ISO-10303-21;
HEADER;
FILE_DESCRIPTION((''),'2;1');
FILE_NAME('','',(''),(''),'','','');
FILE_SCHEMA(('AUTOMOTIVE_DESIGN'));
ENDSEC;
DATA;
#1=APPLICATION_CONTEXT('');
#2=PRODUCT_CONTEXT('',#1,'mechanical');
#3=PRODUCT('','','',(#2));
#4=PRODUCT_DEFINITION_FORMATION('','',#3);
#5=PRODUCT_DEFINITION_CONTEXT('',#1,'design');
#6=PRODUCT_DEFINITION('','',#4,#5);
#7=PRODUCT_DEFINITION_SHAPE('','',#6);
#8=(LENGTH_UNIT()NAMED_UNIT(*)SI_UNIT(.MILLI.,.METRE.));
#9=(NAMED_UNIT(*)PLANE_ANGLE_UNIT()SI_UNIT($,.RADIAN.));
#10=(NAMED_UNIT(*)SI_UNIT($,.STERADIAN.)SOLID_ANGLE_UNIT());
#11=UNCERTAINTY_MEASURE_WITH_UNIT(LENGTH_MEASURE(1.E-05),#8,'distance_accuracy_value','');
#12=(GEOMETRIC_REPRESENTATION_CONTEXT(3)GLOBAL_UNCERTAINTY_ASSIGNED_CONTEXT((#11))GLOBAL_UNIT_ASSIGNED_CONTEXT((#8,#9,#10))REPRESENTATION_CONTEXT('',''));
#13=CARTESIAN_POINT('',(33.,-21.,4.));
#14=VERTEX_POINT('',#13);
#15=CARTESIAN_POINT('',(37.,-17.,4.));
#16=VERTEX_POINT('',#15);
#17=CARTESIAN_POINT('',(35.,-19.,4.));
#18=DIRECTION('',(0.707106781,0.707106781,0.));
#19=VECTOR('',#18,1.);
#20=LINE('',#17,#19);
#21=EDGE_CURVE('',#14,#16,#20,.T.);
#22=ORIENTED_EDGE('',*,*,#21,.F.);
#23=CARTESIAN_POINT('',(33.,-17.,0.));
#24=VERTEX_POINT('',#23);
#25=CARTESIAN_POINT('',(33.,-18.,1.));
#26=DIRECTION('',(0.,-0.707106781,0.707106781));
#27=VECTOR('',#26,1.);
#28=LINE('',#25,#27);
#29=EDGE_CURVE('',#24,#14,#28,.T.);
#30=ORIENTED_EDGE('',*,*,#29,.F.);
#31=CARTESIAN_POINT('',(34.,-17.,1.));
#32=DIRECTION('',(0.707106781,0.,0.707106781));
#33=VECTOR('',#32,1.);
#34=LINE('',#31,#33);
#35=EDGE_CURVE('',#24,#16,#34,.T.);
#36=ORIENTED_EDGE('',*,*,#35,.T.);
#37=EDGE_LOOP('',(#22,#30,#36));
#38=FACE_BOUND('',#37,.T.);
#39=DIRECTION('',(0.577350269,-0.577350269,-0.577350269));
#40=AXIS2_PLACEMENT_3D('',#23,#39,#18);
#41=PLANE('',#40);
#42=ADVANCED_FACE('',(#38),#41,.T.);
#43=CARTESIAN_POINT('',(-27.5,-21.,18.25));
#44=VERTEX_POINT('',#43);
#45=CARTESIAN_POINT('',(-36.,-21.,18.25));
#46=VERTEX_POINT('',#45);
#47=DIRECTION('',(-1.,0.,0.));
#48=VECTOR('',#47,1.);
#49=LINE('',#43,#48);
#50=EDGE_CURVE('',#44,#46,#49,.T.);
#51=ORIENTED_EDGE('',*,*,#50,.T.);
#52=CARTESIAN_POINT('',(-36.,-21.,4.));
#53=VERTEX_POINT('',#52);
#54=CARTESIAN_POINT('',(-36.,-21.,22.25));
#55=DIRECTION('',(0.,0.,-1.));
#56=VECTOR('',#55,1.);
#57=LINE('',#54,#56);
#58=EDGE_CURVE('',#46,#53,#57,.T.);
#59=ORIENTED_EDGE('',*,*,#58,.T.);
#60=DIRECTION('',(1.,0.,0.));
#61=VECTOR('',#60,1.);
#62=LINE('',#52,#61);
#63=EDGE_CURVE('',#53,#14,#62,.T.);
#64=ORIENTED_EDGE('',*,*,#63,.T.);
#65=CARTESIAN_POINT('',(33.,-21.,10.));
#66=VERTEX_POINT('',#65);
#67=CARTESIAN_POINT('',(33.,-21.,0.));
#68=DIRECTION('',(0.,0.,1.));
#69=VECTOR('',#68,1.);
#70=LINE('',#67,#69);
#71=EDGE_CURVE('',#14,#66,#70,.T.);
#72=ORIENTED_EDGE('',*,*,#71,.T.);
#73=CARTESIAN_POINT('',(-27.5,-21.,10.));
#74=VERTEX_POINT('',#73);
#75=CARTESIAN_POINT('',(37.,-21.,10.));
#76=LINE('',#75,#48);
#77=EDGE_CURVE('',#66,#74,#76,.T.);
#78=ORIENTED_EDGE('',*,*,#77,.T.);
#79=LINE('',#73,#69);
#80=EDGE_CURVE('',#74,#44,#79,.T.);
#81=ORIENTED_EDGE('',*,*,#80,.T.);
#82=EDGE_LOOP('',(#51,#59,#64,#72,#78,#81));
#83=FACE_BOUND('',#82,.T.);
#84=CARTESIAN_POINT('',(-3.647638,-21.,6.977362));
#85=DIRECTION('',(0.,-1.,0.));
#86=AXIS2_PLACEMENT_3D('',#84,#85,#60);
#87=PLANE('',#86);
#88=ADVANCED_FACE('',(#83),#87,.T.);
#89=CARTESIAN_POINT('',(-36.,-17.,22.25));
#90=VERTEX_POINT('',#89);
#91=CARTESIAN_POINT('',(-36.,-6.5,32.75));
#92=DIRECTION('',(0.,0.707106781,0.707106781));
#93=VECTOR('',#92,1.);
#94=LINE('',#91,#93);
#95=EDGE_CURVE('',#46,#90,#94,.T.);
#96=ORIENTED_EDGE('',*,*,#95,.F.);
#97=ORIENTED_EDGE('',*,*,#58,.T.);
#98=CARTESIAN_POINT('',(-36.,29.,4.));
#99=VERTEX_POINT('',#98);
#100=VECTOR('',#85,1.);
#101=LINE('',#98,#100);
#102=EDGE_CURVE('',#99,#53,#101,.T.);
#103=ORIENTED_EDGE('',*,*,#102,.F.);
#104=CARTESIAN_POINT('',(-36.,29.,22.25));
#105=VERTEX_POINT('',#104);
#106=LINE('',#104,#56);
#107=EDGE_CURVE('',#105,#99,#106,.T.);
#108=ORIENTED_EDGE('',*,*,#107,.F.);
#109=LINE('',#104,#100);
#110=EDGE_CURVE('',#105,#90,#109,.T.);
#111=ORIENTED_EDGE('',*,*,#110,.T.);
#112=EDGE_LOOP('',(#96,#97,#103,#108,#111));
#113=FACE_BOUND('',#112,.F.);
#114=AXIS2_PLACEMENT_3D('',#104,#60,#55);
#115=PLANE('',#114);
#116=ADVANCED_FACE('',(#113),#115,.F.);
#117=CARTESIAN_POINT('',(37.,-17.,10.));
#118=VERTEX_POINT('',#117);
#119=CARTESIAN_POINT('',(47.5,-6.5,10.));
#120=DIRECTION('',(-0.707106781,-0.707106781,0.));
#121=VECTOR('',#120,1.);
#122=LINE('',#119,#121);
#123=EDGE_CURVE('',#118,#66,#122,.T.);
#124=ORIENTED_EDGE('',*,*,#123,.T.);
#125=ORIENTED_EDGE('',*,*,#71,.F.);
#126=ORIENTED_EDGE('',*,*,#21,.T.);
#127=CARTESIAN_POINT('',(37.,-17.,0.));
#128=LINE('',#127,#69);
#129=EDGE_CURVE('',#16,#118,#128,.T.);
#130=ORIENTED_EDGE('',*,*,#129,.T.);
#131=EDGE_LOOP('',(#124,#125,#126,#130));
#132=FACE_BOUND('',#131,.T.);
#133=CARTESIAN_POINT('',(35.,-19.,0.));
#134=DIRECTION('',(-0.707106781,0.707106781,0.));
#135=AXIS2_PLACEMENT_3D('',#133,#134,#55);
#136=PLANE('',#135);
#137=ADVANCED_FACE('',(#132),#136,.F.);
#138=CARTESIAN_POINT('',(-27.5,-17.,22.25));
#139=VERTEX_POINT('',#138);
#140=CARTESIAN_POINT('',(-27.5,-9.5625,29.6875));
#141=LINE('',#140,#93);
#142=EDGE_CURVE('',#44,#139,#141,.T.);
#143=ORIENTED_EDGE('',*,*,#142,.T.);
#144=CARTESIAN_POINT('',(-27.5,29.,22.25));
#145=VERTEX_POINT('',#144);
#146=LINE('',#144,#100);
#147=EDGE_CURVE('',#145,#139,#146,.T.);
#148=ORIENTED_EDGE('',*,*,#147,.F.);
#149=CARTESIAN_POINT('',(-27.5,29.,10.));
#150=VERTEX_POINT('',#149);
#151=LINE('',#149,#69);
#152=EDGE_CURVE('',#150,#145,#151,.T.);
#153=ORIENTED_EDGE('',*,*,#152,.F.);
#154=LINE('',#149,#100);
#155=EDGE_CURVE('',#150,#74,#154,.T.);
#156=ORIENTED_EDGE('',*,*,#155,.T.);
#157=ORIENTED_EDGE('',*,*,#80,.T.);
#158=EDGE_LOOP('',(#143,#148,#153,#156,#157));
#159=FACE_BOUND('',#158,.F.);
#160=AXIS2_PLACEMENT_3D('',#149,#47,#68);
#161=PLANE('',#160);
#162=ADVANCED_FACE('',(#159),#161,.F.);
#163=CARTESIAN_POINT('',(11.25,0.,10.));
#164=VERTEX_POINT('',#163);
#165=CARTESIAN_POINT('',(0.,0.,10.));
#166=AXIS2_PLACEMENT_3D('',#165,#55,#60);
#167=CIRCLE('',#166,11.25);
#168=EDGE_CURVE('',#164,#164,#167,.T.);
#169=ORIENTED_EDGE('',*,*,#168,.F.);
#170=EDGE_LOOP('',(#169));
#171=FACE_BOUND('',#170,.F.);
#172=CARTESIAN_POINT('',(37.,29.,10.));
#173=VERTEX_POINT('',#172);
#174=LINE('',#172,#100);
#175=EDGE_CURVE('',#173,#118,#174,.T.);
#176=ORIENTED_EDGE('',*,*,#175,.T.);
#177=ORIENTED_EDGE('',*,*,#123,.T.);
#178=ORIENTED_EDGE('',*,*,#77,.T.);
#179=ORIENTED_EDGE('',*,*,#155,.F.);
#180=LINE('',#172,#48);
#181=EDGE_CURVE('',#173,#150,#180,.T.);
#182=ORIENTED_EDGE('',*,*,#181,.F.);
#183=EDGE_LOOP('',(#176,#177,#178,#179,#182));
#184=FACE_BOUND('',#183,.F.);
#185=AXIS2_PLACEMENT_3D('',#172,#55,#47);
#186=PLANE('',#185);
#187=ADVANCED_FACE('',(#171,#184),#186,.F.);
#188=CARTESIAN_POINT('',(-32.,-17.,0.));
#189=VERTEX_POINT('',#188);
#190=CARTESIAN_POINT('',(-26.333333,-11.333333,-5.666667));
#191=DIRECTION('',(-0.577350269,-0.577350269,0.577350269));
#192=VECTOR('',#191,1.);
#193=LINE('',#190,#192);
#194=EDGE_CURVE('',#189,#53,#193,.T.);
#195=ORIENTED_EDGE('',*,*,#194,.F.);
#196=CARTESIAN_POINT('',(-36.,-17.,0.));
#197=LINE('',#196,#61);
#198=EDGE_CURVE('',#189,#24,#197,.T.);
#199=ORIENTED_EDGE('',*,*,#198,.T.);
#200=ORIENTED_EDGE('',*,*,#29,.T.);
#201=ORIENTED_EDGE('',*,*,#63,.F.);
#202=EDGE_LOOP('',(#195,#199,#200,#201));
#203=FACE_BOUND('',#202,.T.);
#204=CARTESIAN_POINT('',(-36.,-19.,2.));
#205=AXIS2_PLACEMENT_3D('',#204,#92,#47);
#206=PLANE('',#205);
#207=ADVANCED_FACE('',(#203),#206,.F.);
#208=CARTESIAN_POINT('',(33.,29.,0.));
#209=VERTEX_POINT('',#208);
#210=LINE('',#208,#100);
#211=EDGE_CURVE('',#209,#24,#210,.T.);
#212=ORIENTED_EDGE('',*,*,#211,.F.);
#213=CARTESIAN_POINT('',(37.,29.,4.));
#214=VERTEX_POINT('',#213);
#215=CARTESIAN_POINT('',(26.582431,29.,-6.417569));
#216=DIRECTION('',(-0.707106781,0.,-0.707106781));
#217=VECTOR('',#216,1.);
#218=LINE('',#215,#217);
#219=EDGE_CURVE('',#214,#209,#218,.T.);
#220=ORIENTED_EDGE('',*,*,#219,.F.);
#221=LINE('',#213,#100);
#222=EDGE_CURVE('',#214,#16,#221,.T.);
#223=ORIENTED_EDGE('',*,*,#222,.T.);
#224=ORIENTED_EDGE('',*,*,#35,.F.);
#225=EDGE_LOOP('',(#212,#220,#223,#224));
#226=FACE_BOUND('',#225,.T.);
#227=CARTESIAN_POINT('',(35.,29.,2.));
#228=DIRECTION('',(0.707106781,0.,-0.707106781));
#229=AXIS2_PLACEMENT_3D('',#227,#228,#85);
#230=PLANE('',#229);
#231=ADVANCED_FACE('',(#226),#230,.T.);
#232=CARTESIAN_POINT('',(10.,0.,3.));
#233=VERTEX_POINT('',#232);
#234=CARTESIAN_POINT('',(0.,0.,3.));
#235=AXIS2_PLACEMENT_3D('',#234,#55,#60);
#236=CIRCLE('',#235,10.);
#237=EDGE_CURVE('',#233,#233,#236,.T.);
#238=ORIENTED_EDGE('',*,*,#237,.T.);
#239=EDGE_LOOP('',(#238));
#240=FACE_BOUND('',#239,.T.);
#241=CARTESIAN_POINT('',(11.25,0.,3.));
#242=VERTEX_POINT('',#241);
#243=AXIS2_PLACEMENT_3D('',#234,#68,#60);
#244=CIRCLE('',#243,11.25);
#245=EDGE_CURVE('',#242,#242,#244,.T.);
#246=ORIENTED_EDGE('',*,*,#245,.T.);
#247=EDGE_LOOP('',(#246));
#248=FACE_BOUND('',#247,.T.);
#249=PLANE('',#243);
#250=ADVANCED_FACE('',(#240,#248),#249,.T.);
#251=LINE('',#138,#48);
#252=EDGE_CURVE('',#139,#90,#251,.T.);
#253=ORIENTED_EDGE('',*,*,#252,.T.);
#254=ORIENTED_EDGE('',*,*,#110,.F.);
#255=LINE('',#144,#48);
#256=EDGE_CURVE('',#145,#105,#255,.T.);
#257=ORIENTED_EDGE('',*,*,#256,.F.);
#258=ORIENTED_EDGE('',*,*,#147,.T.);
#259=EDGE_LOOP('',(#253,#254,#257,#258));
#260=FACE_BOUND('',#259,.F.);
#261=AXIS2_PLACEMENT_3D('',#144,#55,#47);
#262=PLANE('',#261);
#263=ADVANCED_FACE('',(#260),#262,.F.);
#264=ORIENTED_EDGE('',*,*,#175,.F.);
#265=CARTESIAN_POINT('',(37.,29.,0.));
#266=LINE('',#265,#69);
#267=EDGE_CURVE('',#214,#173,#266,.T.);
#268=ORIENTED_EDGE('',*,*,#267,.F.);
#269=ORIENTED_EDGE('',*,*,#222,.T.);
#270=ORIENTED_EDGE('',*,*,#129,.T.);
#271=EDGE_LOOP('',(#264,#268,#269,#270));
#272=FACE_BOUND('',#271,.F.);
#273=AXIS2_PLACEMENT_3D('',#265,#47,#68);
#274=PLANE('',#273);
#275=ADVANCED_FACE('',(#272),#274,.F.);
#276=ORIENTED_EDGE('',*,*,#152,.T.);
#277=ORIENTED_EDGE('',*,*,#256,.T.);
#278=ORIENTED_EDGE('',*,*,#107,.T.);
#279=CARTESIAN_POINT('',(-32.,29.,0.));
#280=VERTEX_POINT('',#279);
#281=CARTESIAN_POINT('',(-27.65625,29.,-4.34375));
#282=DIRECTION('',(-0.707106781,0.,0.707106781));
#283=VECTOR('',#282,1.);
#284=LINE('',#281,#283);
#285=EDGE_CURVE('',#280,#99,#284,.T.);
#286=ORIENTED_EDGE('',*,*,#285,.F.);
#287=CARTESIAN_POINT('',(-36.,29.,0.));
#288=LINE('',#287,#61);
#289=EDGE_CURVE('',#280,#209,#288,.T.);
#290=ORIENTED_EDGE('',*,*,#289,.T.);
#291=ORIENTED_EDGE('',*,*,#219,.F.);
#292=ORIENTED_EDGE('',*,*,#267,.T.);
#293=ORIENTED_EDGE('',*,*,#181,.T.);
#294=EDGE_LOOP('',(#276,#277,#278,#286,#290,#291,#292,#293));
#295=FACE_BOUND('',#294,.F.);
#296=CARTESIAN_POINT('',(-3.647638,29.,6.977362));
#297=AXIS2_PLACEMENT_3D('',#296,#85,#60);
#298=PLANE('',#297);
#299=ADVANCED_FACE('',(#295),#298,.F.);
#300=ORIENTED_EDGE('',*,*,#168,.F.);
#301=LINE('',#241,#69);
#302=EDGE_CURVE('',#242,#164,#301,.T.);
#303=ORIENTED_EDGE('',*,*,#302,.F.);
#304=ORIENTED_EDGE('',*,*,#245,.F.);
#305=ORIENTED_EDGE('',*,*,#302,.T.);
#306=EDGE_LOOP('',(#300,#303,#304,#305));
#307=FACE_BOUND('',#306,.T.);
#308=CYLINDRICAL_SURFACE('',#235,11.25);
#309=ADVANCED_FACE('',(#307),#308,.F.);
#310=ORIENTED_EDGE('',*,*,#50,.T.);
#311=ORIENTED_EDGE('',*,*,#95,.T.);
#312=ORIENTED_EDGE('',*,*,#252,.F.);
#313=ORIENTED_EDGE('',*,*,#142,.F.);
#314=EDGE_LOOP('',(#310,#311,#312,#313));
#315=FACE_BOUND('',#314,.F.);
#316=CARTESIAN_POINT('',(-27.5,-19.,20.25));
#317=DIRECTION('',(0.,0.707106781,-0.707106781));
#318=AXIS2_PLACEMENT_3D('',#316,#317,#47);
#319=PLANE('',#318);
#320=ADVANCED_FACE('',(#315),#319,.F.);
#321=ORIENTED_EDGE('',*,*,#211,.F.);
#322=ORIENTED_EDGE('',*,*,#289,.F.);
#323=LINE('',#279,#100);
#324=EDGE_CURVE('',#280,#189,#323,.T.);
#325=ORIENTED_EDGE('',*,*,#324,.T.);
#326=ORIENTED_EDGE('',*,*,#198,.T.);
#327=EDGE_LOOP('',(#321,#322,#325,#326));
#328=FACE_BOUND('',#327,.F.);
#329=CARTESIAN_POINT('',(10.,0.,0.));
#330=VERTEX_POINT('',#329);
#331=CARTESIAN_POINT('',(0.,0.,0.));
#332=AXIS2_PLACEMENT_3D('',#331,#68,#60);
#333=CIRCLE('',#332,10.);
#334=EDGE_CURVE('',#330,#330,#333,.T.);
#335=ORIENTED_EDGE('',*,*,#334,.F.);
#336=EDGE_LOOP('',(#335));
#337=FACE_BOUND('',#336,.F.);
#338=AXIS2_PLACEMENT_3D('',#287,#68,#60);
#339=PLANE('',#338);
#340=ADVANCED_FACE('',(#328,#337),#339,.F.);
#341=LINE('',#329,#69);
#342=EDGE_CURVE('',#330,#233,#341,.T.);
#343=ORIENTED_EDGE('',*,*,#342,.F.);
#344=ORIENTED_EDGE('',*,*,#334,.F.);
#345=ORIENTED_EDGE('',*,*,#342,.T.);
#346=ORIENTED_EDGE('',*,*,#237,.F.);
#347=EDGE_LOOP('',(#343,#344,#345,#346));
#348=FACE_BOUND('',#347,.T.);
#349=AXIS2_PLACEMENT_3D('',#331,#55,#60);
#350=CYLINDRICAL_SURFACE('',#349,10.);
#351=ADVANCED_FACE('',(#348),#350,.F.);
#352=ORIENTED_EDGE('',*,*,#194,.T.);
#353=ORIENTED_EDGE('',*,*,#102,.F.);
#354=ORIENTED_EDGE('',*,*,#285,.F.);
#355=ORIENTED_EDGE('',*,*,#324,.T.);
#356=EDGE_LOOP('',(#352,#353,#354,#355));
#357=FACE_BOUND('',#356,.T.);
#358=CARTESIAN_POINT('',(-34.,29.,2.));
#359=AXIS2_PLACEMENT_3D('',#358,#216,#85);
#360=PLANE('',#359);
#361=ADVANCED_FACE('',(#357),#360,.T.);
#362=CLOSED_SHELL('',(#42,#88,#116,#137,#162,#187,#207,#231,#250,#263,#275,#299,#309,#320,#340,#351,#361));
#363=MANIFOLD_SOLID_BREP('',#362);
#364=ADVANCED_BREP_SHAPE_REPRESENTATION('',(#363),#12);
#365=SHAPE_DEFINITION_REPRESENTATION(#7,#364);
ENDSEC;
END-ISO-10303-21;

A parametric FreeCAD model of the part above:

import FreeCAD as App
import Part
import Sketcher
from FreeCAD import Vector


def edges_at(feature, points):
    """Names of the edges that pass closest to the given points."""
    edges = feature.Shape.Edges
    near = lambda p: min(range(len(edges)), key=lambda i: edges[i].distToShape(Part.Vertex(*p))[0])
    return sorted({f"Edge{near(p) + 1}" for p in points})

doc = App.newDocument("Part")
body = doc.addObject("PartDesign::Body", "Body")

sketch1 = body.newObject("Sketcher::SketchObject", "Sketch")
sketch1.AttachmentSupport = (doc.getObject("XZ_Plane"), [""])
sketch1.MapMode = "FlatFace"
sketch1.AttachmentOffset = App.Placement(Vector(0, 0, -29), App.Rotation())
sketch1.addGeometry(Part.LineSegment(Vector(37, 0, 0), Vector(37, 10, 0)), False)
sketch1.addGeometry(Part.LineSegment(Vector(37, 10, 0), Vector(-28, 10, 0)), False)
sketch1.addGeometry(Part.LineSegment(Vector(-28, 10, 0), Vector(-28, 22, 0)), False)
sketch1.addGeometry(Part.LineSegment(Vector(-28, 22, 0), Vector(-36, 22, 0)), False)
sketch1.addGeometry(Part.LineSegment(Vector(-36, 22, 0), Vector(-36, 0, 0)), False)
sketch1.addGeometry(Part.LineSegment(Vector(-36, 0, 0), Vector(37, 0, 0)), False)
sketch1.addConstraint(Sketcher.Constraint("Coincident", 0, 2, 1, 1))
sketch1.addConstraint(Sketcher.Constraint("Coincident", 1, 2, 2, 1))
sketch1.addConstraint(Sketcher.Constraint("Coincident", 2, 2, 3, 1))
sketch1.addConstraint(Sketcher.Constraint("Coincident", 3, 2, 4, 1))
sketch1.addConstraint(Sketcher.Constraint("Coincident", 4, 2, 5, 1))
sketch1.addConstraint(Sketcher.Constraint("Coincident", 5, 2, 0, 1))
sketch1.addConstraint(Sketcher.Constraint("Vertical", 0))
sketch1.addConstraint(Sketcher.Constraint("Horizontal", 1))
sketch1.addConstraint(Sketcher.Constraint("Vertical", 2))
sketch1.addConstraint(Sketcher.Constraint("Horizontal", 3))
sketch1.addConstraint(Sketcher.Constraint("Vertical", 4))
sketch1.addConstraint(Sketcher.Constraint("Horizontal", 5))
sketch1.addConstraint(Sketcher.Constraint("PointOnObject", 4, 2, -1))
sketch1.addConstraint(Sketcher.Constraint("DistanceX", 5, 1, 5, 2, 73.0))
sketch1.addConstraint(Sketcher.Constraint("DistanceY", 0, 1, 0, 2, 10.0))
sketch1.addConstraint(Sketcher.Constraint("DistanceX", 1, 2, 1, 1, 64.5))
sketch1.addConstraint(Sketcher.Constraint("DistanceX", -1, 1, 0, 2, 37.0))
sketch1.addConstraint(Sketcher.Constraint("DistanceY", 2, 1, 2, 2, 12.25))
pad1 = body.newObject("PartDesign::Pad", "Pad")
pad1.Profile = sketch1
pad1.Length = 50

sketch2 = body.newObject("Sketcher::SketchObject", "Sketch001")
sketch2.AttachmentSupport = (doc.getObject("XY_Plane"), [""])
sketch2.MapMode = "FlatFace"
sketch2.addGeometry(Part.Circle(Vector(0, 0, 0), Vector(0, 0, 1), 10), False)
sketch2.addConstraint(Sketcher.Constraint("Coincident", 0, 3, -1, 1))
sketch2.addConstraint(Sketcher.Constraint("Diameter", 0, 20.0))
pocket1 = body.newObject("PartDesign::Pocket", "Pocket")
pocket1.Profile = sketch2
pocket1.Type = "ThroughAll"
pocket1.Reversed = True

sketch3 = body.newObject("Sketcher::SketchObject", "Sketch002")
sketch3.AttachmentSupport = (doc.getObject("XY_Plane"), [""])
sketch3.MapMode = "FlatFace"
sketch3.AttachmentOffset = App.Placement(Vector(0, 0, 3), App.Rotation())
sketch3.addGeometry(Part.Circle(Vector(0, 0, 0), Vector(0, 0, 1), 11), False)
sketch3.addConstraint(Sketcher.Constraint("Coincident", 0, 3, -1, 1))
sketch3.addConstraint(Sketcher.Constraint("Diameter", 0, 22.5))
pocket2 = body.newObject("PartDesign::Pocket", "Pocket001")
pocket2.Profile = sketch3
pocket2.Type = "ThroughAll"
pocket2.Reversed = True
doc.recompute()

chamfer = body.newObject("PartDesign::Chamfer", "Chamfer")
chamfer.Base = (pocket2, edges_at(pocket2, [
    (-31.75, -21, 22.25),
    (37, -21, 5),
    (-36, 4, 0),
    (0.5, -21, 0),
    (37, 4, 0),
]))
chamfer.Size = 4

doc.recompute()
